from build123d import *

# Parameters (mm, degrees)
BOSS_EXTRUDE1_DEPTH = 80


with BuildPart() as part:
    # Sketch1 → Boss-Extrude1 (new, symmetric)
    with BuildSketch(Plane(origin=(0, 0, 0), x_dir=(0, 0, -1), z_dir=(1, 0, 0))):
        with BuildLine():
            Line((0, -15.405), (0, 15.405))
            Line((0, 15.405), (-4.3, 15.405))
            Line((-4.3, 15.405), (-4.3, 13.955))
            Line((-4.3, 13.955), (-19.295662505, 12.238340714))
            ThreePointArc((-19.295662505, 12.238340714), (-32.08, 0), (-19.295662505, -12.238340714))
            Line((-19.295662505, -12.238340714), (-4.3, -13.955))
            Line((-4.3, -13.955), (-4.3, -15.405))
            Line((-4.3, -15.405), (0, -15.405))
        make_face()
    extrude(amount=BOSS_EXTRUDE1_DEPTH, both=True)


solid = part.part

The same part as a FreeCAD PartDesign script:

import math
import FreeCAD as App
import Part
import Sketcher

doc = App.newDocument("Part")
body = doc.addObject("PartDesign::Body", "Body")

sketch1 = body.newObject("Sketcher::SketchObject", "Sketch")
sketch1.AttachmentSupport = (doc.getObject("YZ_Plane"), [""])
sketch1.MapMode = "FlatFace"
sketch1.addGeometry([
    Part.LineSegment(App.Vector(-15.405, 0, 0), App.Vector(15.405, 0, 0)),
    Part.LineSegment(App.Vector(15.405, 0, 0), App.Vector(15.405, 4.3, 0)),
    Part.LineSegment(App.Vector(15.405, 4.3, 0), App.Vector(13.955, 4.3, 0)),
    Part.LineSegment(App.Vector(13.955, 4.3, 0), App.Vector(12.238341, 19.295663, 0)),
    Part.ArcOfCircle(Part.Circle(App.Vector(0, 19.83, 0), App.Vector(0, 0, 1), 12.25), math.radians(-2.5), math.radians(182.5)),
    Part.LineSegment(App.Vector(-12.238341, 19.295663, 0), App.Vector(-13.955, 4.3, 0)),
    Part.LineSegment(App.Vector(-13.955, 4.3, 0), App.Vector(-15.405, 4.3, 0)),
    Part.LineSegment(App.Vector(-15.405, 4.3, 0), App.Vector(-15.405, 0, 0)),
], False)
sketch1.addConstraint([
    Sketcher.Constraint("Coincident", 0, 2, 1, 1),
    Sketcher.Constraint("Coincident", 1, 2, 2, 1),
    Sketcher.Constraint("Coincident", 2, 2, 3, 1),
    Sketcher.Constraint("Coincident", 3, 2, 4, 1),
    Sketcher.Constraint("Coincident", 4, 2, 5, 1),
    Sketcher.Constraint("Coincident", 5, 2, 6, 1),
    Sketcher.Constraint("Coincident", 6, 2, 7, 1),
    Sketcher.Constraint("Coincident", 7, 2, 0, 1),
    Sketcher.Constraint("Horizontal", 0),
    Sketcher.Constraint("Vertical", 1),
    Sketcher.Constraint("Horizontal", 2),
    Sketcher.Constraint("Horizontal", 6),
    Sketcher.Constraint("Vertical", 7),
    Sketcher.Constraint("Symmetric", 0, 2, 7, 2, -1, 1),
    Sketcher.Constraint("Symmetric", 3, 2, 4, 2, -2),
    Sketcher.Constraint("Symmetric", 2, 2, 5, 2, -2),
    Sketcher.Constraint("Radius", 4, 12.25),
    Sketcher.Constraint("DistanceY", 1, 1, 1, 2, 4.3),
    Sketcher.Constraint("DistanceX", 0, 1, 0, 2, 30.81),
    Sketcher.Constraint("DistanceX", 2, 2, 2, 1, 1.45),
    Sketcher.Constraint("DistanceY", -1, 1, 4, 3, 19.83),
    Sketcher.Constraint("Distance", 3, 15.093602),
])
pad1 = body.newObject("PartDesign::Pad", "Pad")
pad1.Profile = sketch1
pad1.Length = 160
pad1.Midplane = True

doc.recompute()
